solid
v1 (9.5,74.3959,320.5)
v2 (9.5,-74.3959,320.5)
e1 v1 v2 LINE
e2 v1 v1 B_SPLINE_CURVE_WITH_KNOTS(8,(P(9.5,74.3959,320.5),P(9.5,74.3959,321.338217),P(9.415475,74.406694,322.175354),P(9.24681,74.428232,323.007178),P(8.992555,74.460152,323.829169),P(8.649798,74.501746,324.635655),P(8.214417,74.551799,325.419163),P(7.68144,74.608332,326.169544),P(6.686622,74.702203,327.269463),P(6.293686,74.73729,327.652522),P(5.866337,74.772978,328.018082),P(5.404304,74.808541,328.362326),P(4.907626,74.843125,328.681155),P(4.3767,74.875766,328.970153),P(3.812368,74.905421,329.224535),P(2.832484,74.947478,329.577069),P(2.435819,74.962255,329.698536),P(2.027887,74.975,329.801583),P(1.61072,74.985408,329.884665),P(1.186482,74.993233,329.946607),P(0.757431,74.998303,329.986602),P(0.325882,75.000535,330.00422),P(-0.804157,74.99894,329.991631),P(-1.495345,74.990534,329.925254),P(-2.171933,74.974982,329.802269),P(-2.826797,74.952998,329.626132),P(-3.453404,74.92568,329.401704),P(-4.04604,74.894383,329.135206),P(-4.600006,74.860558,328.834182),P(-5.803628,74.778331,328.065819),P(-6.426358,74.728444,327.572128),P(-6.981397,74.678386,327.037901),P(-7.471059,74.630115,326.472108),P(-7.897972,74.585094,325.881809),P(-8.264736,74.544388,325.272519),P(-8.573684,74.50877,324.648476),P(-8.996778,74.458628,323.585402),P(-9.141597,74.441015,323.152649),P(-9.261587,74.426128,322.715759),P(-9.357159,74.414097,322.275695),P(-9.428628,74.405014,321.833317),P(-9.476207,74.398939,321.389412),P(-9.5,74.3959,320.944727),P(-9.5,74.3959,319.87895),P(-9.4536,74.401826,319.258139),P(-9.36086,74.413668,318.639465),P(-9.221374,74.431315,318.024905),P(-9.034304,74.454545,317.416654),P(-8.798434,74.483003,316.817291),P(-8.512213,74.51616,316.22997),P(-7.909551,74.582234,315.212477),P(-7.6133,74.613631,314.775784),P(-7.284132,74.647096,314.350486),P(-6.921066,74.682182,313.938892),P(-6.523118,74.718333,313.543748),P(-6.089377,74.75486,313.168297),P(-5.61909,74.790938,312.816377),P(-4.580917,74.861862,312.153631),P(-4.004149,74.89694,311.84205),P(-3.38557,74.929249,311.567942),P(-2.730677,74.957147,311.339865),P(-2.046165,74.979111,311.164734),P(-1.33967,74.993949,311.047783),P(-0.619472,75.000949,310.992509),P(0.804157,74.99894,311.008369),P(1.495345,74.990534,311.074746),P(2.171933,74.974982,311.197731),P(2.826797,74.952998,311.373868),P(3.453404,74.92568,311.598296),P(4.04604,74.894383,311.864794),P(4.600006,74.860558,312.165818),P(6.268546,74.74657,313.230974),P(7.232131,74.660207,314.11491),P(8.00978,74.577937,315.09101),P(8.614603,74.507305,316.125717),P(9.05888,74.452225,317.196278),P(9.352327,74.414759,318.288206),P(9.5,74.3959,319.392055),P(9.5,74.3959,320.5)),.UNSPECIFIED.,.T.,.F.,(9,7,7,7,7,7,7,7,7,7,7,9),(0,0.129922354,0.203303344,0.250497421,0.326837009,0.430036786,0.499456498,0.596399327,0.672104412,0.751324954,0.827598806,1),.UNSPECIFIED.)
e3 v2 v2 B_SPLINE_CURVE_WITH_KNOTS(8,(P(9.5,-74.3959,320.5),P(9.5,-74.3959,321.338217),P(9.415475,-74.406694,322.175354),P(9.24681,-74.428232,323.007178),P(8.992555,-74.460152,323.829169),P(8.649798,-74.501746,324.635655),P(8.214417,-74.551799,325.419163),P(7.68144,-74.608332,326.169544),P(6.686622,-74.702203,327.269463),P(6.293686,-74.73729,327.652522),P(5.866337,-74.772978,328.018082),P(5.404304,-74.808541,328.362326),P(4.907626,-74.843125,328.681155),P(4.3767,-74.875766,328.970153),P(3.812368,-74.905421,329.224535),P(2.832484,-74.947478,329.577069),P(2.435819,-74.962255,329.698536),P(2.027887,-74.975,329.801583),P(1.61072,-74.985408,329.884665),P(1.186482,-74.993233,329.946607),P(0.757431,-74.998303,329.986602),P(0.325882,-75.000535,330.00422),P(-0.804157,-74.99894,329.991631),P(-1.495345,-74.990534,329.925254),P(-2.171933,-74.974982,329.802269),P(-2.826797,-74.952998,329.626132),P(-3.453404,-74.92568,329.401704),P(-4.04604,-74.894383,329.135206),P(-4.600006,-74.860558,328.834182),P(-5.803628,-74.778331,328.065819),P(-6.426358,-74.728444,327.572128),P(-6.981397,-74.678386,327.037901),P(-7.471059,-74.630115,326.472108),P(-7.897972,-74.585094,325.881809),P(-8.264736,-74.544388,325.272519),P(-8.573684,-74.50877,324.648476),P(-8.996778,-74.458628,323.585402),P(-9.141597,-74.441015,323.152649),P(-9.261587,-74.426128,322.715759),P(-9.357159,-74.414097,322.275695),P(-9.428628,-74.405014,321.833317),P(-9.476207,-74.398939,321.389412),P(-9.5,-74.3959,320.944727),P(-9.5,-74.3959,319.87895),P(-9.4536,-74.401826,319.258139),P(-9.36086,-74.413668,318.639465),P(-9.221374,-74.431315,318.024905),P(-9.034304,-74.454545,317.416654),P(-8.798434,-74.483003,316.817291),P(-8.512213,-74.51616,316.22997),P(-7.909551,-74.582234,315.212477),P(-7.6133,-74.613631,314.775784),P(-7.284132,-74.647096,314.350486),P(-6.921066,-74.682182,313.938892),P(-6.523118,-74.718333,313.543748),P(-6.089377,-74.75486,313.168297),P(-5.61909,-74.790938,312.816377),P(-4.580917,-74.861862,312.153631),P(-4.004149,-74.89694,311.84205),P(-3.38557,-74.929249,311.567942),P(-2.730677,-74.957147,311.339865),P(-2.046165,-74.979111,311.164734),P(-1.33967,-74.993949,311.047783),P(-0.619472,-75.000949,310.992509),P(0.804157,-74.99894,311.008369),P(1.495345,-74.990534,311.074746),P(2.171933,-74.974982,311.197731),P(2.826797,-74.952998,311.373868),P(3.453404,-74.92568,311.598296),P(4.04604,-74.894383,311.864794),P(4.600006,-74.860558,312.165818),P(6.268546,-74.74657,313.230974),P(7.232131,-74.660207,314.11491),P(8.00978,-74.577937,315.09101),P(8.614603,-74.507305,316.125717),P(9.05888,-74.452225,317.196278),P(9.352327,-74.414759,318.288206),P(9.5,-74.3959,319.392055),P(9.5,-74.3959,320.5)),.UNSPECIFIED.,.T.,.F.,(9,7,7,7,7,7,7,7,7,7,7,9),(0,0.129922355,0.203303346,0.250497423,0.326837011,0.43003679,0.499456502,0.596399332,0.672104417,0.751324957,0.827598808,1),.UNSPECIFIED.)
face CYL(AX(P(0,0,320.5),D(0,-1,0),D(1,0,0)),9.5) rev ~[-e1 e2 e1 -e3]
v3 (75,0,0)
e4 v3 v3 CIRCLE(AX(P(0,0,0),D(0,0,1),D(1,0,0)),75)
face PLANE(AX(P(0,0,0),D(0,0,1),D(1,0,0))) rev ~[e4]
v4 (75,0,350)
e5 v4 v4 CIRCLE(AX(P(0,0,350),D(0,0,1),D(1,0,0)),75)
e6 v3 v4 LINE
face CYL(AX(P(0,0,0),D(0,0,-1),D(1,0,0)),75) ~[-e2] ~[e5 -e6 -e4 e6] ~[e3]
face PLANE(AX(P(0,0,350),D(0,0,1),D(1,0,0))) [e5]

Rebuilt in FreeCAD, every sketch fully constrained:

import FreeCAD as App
import Part
import Sketcher
Q = App.Units.Quantity

doc = App.newDocument("Part")
body = doc.addObject("PartDesign::Body", "Body")

# Sketch on XY plane
sketch1 = body.newObject("Sketcher::SketchObject", "Sketch")
sketch1.AttachmentSupport = (doc.getObject("XY_Plane"), [""])
sketch1.MapMode = "FlatFace"
sketch1.addGeometry(Part.Circle(App.Vector(0, 0, 0), App.Vector(0, 0, 1), 75), False)
sketch1.addConstraint([
    Sketcher.Constraint("Coincident", 0, 3, -1, 1),
    Sketcher.Constraint("Diameter", 0, Q("150 mm")),
])
pad1 = body.newObject("PartDesign::Pad", "Pad")
pad1.Profile = sketch1
pad1.Length = 350

# Sketch on XZ plane
sketch2 = body.newObject("Sketcher::SketchObject", "Sketch001")
sketch2.AttachmentSupport = (doc.getObject("XZ_Plane"), [""])
sketch2.MapMode = "FlatFace"
sketch2.addGeometry(Part.Circle(App.Vector(0, 320, 0), App.Vector(0, 0, 1), 10), False)
sketch2.addConstraint([
    Sketcher.Constraint("PointOnObject", 0, 3, -2),
    Sketcher.Constraint("Diameter", 0, Q("19 mm")),
    Sketcher.Constraint("DistanceY", -1, 1, 0, 3, Q("320.5 mm")),
])
pocket1 = body.newObject("PartDesign::Pocket", "Pocket")
pocket1.Profile = sketch2
pocket1.Length = 234
pocket1.Midplane = True

doc.recompute()
